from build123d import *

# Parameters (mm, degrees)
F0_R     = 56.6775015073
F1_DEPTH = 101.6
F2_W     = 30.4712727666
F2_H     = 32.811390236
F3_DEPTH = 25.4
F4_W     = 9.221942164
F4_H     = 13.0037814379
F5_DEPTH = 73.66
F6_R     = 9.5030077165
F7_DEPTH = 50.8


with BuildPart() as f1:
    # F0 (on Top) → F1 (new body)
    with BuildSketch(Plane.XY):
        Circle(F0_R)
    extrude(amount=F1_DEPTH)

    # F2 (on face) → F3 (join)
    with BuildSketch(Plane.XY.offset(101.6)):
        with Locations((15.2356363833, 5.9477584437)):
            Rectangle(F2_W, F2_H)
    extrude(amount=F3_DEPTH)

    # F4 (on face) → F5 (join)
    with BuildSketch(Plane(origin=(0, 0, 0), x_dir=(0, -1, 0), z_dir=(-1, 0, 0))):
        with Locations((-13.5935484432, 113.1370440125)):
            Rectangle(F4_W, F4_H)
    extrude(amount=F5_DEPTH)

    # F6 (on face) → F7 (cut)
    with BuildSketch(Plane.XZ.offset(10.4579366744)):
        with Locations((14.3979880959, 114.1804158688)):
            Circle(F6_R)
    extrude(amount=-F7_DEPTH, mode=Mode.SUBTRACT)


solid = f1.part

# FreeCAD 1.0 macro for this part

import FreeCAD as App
import Part
import Sketcher

V = App.Vector
Q = App.Units.Quantity

doc = App.newDocument("Part")
body = doc.addObject("PartDesign::Body", "Body")

# Sketch on XY plane
sketch1 = body.newObject("Sketcher::SketchObject", "Sketch")
sketch1.AttachmentSupport = (doc.getObject("XY_Plane"), [""])
sketch1.MapMode = "FlatFace"
sketch1.addGeometry(Part.Circle(V(0, 0, 0), V(0, 0, 1), 57), False)
sketch1.addConstraint(Sketcher.Constraint("Coincident", 0, 3, -1, 1))
sketch1.addConstraint(Sketcher.Constraint("Diameter", 0, 113.355003))
pad1 = body.newObject("PartDesign::Pad", "Pad")
pad1.Profile = sketch1
pad1.Length = Q("4 in")

# Sketch on XY plane
sketch2 = body.newObject("Sketcher::SketchObject", "Sketch001")
sketch2.AttachmentSupport = (doc.getObject("XY_Plane"), [""])
sketch2.MapMode = "FlatFace"
sketch2.AttachmentOffset = App.Placement(V(0, 0, 4 * 25.4), App.Rotation())
sketch2.addGeometry(Part.LineSegment(V(0, 22, 0), V(0, -10, 0)), False)
sketch2.addGeometry(Part.LineSegment(V(0, -10, 0), V(30, -10, 0)), False)
sketch2.addGeometry(Part.LineSegment(V(30, -10, 0), V(30, 22, 0)), False)
sketch2.addGeometry(Part.LineSegment(V(30, 22, 0), V(0, 22, 0)), False)
sketch2.addConstraint(Sketcher.Constraint("Coincident", 0, 2, 1, 1))
sketch2.addConstraint(Sketcher.Constraint("Coincident", 1, 2, 2, 1))
sketch2.addConstraint(Sketcher.Constraint("Coincident", 2, 2, 3, 1))
sketch2.addConstraint(Sketcher.Constraint("Coincident", 3, 2, 0, 1))
sketch2.addConstraint(Sketcher.Constraint("Vertical", 0))
sketch2.addConstraint(Sketcher.Constraint("Horizontal", 1))
sketch2.addConstraint(Sketcher.Constraint("Vertical", 2))
sketch2.addConstraint(Sketcher.Constraint("Horizontal", 3))
sketch2.addConstraint(Sketcher.Constraint("PointOnObject", 0, 2, -2))
sketch2.addConstraint(Sketcher.Constraint("DistanceY", 0, 2, 0, 1, 32.81139))
sketch2.addConstraint(Sketcher.Constraint("DistanceX", 1, 1, 1, 2, 30.471273))
sketch2.addConstraint(Sketcher.Constraint("DistanceY", 0, 2, -1, 1, 10.457937))
pad2 = body.newObject("PartDesign::Pad", "Pad001")
pad2.Profile = sketch2
pad2.Length = Q("1 in")

# Sketch on YZ plane
sketch3 = body.newObject("Sketcher::SketchObject", "Sketch002")
sketch3.AttachmentSupport = (doc.getObject("YZ_Plane"), [""])
sketch3.MapMode = "FlatFace"
sketch3.addGeometry(Part.LineSegment(V(18, 120, 0), V(18, 107, 0)), False)
sketch3.addGeometry(Part.LineSegment(V(18, 107, 0), V(9, 107, 0)), False)
sketch3.addGeometry(Part.LineSegment(V(9, 107, 0), V(9, 120, 0)), False)
sketch3.addGeometry(Part.LineSegment(V(9, 120, 0), V(18, 120, 0)), False)
sketch3.addConstraint(Sketcher.Constraint("Coincident", 0, 2, 1, 1))
sketch3.addConstraint(Sketcher.Constraint("Coincident", 1, 2, 2, 1))
sketch3.addConstraint(Sketcher.Constraint("Coincident", 2, 2, 3, 1))
sketch3.addConstraint(Sketcher.Constraint("Coincident", 3, 2, 0, 1))
sketch3.addConstraint(Sketcher.Constraint("Vertical", 0))
sketch3.addConstraint(Sketcher.Constraint("Horizontal", 1))
sketch3.addConstraint(Sketcher.Constraint("Vertical", 2))
sketch3.addConstraint(Sketcher.Constraint("Horizontal", 3))
sketch3.addConstraint(Sketcher.Constraint("DistanceY", 0, 2, 0, 1, 13.003781))
sketch3.addConstraint(Sketcher.Constraint("DistanceX", 1, 2, 1, 1, 9.221942))
sketch3.addConstraint(Sketcher.Constraint("DistanceX", -1, 1, 0, 2, 18.20452))
sketch3.addConstraint(Sketcher.Constraint("DistanceY", -1, 1, 0, 2, 106.635153))
pad3 = body.newObject("PartDesign::Pad", "Pad002")
pad3.Profile = sketch3
pad3.Length = Q("2.9 in")
pad3.Reversed = True

# Sketch on XZ plane
sketch4 = body.newObject("Sketcher::SketchObject", "Sketch003")
sketch4.AttachmentSupport = (doc.getObject("XZ_Plane"), [""])
sketch4.MapMode = "FlatFace"
sketch4.AttachmentOffset = App.Placement(V(0, 0, 10.457937), App.Rotation())
sketch4.addGeometry(Part.Circle(V(14, 114, 0), V(0, 0, 1), 10), False)
sketch4.addConstraint(Sketcher.Constraint("Diameter", 0, 19.006015))
sketch4.addConstraint(Sketcher.Constraint("DistanceX", -1, 1, 0, 3, 14.397988))
sketch4.addConstraint(Sketcher.Constraint("DistanceY", -1, 1, 0, 3, 114.180416))
pocket1 = body.newObject("PartDesign::Pocket", "Pocket")
pocket1.Profile = sketch4
pocket1.Length = Q("2 in")

doc.recompute()
